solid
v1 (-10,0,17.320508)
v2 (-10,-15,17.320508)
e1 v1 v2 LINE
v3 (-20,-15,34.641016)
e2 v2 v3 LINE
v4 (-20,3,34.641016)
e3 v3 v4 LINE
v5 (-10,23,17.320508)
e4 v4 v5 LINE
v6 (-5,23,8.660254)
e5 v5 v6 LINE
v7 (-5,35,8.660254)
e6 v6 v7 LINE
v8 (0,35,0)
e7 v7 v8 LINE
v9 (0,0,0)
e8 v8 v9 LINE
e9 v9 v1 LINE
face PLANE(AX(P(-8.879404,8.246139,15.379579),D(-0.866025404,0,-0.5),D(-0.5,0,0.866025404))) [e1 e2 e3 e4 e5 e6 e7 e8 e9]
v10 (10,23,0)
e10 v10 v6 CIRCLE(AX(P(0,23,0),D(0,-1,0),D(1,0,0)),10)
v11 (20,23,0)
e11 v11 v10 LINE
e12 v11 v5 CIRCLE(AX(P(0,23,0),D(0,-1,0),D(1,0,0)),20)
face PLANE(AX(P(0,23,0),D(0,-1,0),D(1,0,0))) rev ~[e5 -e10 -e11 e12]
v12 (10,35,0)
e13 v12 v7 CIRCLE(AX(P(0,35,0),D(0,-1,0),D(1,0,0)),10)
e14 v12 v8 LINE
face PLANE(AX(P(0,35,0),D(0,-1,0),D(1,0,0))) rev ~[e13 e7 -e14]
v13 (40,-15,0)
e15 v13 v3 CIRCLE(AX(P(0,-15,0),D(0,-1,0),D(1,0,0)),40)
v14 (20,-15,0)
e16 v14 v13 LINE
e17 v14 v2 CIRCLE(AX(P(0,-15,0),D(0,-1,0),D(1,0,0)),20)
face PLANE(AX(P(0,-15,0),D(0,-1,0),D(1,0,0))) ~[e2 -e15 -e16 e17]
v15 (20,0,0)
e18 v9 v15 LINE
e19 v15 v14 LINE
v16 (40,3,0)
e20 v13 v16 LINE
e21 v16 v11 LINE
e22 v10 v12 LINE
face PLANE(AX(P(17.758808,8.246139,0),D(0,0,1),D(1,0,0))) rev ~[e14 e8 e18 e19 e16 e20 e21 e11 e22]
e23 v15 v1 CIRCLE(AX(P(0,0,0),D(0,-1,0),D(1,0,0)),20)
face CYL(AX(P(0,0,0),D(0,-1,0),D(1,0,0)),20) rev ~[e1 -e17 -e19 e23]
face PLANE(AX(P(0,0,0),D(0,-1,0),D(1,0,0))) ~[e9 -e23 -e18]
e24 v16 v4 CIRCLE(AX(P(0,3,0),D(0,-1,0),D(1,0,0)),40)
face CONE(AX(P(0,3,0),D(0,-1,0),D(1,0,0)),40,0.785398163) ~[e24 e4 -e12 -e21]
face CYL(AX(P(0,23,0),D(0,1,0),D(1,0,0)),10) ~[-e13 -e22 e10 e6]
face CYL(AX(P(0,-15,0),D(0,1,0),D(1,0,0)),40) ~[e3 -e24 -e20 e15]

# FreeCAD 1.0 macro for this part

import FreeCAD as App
import Part
import Sketcher

doc = App.newDocument("Part")
body = doc.addObject("PartDesign::Body", "Body")

# Sketch on XY plane
sketch1 = body.newObject("Sketcher::SketchObject", "Sketch")
sketch1.AttachmentSupport = (doc.getObject("XY_Plane"), [""])
sketch1.MapMode = "FlatFace"
sketch1.addGeometry(Part.LineSegment(App.Vector(10, 35, 0), App.Vector(0, 35, 0)), False)
sketch1.addGeometry(Part.LineSegment(App.Vector(0, 35, 0), App.Vector(0, 0, 0)), False)
sketch1.addGeometry(Part.LineSegment(App.Vector(0, 0, 0), App.Vector(20, 0, 0)), False)
sketch1.addGeometry(Part.LineSegment(App.Vector(20, 0, 0), App.Vector(20, -15, 0)), False)
sketch1.addGeometry(Part.LineSegment(App.Vector(20, -15, 0), App.Vector(40, -15, 0)), False)
sketch1.addGeometry(Part.LineSegment(App.Vector(40, -15, 0), App.Vector(40, 3, 0)), False)
sketch1.addGeometry(Part.LineSegment(App.Vector(40, 3, 0), App.Vector(20, 23, 0)), False)
sketch1.addGeometry(Part.LineSegment(App.Vector(20, 23, 0), App.Vector(10, 23, 0)), False)
sketch1.addGeometry(Part.LineSegment(App.Vector(10, 23, 0), App.Vector(10, 35, 0)), False)
sketch1.addConstraint(Sketcher.Constraint("Coincident", 0, 2, 1, 1))
sketch1.addConstraint(Sketcher.Constraint("Coincident", 1, 2, 2, 1))
sketch1.addConstraint(Sketcher.Constraint("Coincident", 2, 2, 3, 1))
sketch1.addConstraint(Sketcher.Constraint("Coincident", 3, 2, 4, 1))
sketch1.addConstraint(Sketcher.Constraint("Coincident", 4, 2, 5, 1))
sketch1.addConstraint(Sketcher.Constraint("Coincident", 5, 2, 6, 1))
sketch1.addConstraint(Sketcher.Constraint("Coincident", 6, 2, 7, 1))
sketch1.addConstraint(Sketcher.Constraint("Coincident", 7, 2, 8, 1))
sketch1.addConstraint(Sketcher.Constraint("Coincident", 8, 2, 0, 1))
sketch1.addConstraint(Sketcher.Constraint("Horizontal", 0))
sketch1.addConstraint(Sketcher.Constraint("Vertical", 1))
sketch1.addConstraint(Sketcher.Constraint("Horizontal", 2))
sketch1.addConstraint(Sketcher.Constraint("Vertical", 3))
sketch1.addConstraint(Sketcher.Constraint("Horizontal", 4))
sketch1.addConstraint(Sketcher.Constraint("Vertical", 5))
sketch1.addConstraint(Sketcher.Constraint("Horizontal", 7))
sketch1.addConstraint(Sketcher.Constraint("Vertical", 8))
sketch1.addConstraint(Sketcher.Constraint("Coincident", 1, 2, -1, 1))
sketch1.addConstraint(Sketcher.Constraint("Vertical", 3, 2, 6, 2))
sketch1.addConstraint(Sketcher.Constraint("Equal", 2, 4))
sketch1.addConstraint(Sketcher.Constraint("Equal", 0, 7))
sketch1.addConstraint(Sketcher.Constraint("DistanceX", 0, 2, 0, 1, 10.0))
sketch1.addConstraint(Sketcher.Constraint("DistanceY", 1, 2, 1, 1, 35.0))
sketch1.addConstraint(Sketcher.Constraint("DistanceY", 3, 2, 3, 1, 15.0))
sketch1.addConstraint(Sketcher.Constraint("DistanceY", 5, 1, 5, 2, 18.0))
sketch1.addConstraint(Sketcher.Constraint("DistanceY", 8, 1, 8, 2, 12.0))
revolution = body.newObject("PartDesign::Revolution", "Revolution")
revolution.Profile = sketch1
revolution.ReferenceAxis = (sketch1, ["V_Axis"])
revolution.Angle = 120
revolution.Reversed = True

doc.recompute()
